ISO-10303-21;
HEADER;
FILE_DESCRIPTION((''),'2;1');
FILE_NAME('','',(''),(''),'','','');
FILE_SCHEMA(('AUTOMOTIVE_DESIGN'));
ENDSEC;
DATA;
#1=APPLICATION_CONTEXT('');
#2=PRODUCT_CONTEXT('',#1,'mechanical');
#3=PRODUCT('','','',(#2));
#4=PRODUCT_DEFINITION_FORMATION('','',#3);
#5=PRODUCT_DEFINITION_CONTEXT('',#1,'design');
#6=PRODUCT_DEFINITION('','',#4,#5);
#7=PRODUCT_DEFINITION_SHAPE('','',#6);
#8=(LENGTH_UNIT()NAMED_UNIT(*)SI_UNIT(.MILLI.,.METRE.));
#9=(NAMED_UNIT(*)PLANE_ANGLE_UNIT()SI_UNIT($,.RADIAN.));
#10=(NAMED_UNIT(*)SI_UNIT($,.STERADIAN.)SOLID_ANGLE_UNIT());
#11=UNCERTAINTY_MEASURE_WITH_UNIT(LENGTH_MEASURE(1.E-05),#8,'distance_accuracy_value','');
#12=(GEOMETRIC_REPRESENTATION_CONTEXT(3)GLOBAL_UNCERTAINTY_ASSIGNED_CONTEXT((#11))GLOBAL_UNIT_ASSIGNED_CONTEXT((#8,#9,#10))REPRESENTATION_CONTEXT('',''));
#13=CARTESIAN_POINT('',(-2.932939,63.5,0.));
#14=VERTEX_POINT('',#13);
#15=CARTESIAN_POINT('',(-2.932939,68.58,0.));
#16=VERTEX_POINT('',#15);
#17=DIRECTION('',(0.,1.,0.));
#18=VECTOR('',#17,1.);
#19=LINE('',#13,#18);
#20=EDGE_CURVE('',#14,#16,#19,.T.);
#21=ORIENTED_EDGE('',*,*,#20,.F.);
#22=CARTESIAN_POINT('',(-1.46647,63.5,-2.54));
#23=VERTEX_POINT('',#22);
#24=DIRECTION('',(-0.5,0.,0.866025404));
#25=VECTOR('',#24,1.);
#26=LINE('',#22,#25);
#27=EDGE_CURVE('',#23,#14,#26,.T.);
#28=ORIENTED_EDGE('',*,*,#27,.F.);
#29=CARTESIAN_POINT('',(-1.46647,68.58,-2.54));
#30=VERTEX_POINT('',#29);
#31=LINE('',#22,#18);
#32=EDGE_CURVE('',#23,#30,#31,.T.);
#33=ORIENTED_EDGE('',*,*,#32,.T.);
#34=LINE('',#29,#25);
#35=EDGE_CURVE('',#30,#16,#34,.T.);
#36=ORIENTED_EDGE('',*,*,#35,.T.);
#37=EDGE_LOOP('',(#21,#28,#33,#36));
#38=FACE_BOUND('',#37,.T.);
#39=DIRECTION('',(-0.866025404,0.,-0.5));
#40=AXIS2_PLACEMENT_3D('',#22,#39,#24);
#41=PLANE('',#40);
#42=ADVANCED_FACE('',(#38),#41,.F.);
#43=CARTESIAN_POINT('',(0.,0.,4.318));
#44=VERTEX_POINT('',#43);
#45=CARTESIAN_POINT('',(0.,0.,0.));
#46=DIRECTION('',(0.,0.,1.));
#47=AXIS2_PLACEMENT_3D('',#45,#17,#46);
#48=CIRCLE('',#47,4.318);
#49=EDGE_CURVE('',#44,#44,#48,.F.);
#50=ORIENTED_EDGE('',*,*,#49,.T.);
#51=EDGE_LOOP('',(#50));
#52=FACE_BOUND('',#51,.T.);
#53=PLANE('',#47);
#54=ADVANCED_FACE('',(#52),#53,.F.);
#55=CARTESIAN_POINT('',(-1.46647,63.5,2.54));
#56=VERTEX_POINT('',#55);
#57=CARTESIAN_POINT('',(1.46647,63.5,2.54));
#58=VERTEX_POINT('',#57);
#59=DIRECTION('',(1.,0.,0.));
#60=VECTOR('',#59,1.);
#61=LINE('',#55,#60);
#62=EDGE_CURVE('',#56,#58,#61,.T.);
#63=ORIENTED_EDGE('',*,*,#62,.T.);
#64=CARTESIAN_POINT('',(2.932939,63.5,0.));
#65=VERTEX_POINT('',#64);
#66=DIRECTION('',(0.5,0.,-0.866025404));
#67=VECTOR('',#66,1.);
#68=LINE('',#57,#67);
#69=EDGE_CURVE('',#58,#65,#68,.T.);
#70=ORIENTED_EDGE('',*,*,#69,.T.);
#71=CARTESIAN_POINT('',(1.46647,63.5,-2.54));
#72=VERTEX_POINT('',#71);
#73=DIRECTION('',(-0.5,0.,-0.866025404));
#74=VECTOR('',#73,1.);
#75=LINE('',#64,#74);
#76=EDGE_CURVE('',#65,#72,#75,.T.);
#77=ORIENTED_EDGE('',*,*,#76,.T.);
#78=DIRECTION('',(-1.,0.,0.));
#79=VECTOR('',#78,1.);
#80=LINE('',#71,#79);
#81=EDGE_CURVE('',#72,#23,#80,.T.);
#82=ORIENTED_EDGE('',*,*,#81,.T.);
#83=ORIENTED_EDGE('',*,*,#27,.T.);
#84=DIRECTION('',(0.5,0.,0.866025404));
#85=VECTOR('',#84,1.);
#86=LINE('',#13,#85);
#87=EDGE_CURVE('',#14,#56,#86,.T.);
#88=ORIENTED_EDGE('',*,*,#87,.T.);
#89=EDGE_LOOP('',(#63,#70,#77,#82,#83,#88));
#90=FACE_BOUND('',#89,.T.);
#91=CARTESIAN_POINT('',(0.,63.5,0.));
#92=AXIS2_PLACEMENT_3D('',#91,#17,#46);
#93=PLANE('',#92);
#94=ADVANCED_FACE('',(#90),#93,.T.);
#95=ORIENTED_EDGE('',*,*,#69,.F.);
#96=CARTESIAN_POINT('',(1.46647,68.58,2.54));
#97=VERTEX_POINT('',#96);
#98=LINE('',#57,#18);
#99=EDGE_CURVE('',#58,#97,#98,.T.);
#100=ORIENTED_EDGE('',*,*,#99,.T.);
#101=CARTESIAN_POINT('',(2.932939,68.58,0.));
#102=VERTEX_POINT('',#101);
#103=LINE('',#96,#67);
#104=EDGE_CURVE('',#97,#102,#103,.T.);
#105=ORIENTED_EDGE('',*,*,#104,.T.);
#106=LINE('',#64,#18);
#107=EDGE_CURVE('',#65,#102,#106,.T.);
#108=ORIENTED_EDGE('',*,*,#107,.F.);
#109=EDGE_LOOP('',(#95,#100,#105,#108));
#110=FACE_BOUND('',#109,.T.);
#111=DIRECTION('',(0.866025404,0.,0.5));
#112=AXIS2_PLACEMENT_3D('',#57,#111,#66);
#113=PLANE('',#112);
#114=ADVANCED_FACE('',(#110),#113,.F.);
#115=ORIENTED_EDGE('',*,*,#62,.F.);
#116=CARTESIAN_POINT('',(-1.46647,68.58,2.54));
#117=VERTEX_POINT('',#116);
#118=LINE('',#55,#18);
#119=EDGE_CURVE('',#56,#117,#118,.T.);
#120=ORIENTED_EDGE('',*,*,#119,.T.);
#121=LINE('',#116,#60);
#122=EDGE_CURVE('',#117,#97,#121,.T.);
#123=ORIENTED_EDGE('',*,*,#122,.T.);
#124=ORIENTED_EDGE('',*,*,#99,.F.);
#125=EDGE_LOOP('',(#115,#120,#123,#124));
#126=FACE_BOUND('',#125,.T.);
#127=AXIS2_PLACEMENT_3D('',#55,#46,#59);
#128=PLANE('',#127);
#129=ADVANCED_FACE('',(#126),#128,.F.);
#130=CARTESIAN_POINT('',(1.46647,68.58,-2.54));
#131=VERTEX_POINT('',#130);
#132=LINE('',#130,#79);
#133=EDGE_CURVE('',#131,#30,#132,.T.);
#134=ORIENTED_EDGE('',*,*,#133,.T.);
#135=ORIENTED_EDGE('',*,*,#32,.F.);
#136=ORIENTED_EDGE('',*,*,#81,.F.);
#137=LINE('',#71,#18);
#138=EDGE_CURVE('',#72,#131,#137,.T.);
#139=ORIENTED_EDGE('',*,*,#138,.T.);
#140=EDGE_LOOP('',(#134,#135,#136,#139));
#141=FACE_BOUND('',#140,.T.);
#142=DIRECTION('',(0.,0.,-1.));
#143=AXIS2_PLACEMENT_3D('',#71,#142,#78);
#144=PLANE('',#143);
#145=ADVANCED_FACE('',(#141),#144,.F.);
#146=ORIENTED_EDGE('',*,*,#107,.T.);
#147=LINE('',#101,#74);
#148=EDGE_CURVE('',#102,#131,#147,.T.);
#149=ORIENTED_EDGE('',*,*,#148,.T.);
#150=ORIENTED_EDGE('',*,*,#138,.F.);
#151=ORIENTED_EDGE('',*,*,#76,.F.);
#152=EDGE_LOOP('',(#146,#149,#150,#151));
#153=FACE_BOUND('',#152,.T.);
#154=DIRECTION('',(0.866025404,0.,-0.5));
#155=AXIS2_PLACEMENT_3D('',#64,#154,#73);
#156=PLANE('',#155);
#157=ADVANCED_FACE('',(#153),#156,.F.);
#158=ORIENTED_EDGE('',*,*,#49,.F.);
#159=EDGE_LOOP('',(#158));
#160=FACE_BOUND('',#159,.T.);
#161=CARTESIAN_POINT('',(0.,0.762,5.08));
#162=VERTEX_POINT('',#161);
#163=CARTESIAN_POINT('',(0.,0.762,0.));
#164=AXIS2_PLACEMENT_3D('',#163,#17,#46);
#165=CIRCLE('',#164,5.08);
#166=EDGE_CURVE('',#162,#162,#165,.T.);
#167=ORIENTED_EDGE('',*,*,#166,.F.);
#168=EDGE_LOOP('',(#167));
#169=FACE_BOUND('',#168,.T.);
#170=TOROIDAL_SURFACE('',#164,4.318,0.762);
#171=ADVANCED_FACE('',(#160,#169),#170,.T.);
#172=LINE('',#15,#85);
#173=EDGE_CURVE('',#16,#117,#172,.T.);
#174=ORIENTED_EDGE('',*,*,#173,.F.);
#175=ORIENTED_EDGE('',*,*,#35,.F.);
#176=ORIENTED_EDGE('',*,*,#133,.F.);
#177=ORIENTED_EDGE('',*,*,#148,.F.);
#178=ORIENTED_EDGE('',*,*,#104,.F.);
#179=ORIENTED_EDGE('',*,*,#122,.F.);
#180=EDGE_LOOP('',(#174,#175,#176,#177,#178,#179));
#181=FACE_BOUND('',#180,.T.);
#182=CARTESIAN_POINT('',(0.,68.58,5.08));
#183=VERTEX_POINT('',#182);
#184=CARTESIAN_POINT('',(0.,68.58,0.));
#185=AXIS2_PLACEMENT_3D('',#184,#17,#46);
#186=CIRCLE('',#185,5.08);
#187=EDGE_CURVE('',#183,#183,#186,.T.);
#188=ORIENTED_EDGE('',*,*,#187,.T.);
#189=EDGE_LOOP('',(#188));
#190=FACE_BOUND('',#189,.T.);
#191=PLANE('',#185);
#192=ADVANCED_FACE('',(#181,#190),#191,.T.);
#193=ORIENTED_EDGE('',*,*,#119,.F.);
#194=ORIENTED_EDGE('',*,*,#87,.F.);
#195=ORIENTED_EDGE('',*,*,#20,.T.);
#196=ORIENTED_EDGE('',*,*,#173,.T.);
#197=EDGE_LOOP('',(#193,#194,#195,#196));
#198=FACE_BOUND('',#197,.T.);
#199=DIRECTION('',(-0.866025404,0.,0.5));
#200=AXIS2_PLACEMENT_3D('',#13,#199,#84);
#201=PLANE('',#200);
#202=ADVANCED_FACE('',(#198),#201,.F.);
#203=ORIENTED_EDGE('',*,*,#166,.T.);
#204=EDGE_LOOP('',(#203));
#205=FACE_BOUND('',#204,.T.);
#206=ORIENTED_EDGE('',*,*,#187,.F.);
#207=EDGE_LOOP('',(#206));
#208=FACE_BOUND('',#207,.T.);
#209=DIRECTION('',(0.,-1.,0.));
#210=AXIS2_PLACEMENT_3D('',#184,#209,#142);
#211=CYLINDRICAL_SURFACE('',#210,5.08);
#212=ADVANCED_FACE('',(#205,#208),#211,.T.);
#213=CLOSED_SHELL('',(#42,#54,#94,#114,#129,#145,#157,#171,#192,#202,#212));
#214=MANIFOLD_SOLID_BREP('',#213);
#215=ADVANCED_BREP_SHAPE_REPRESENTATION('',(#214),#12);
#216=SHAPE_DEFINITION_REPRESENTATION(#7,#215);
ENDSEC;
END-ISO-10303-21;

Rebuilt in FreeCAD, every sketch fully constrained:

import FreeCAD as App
import Part
import Sketcher

V = App.Vector
Q = App.Units.Quantity


def edges_at(feature, points):
    """Names of the edges that pass closest to the given points."""
    edges = feature.Shape.Edges
    near = lambda p: min(range(len(edges)), key=lambda i: edges[i].distToShape(Part.Vertex(*p))[0])
    return sorted({f"Edge{near(p) + 1}" for p in points})


def add_polygon(sketch, points):
    """Adds a closed chain of lines whose ends are joined by coincident constraints."""
    first, n = sketch.GeometryCount, len(points)
    for a, b in zip(points, points[1:] + points[:1]):
        sketch.addGeometry(Part.LineSegment(App.Vector(*a, 0), App.Vector(*b, 0)), False)
    for i in range(n):
        sketch.addConstraint(Sketcher.Constraint("Coincident", first + i, 2, first + (i + 1) % n, 1))

doc = App.newDocument("Part")
body = doc.addObject("PartDesign::Body", "Body")

sketch1 = doc.addObject("Sketcher::SketchObject", "Sketch")
body.addObject(sketch1)
sketch1.AttachmentSupport = (doc.XZ_Plane, [""])
sketch1.MapMode = "FlatFace"
sketch1.addGeometry(Part.Circle(V(0, 0, 0), V(0, 0, 1), 5.08), False)
sketch1.addConstraint(Sketcher.Constraint("Coincident", 0, 3, -1, 1))
sketch1.addConstraint(Sketcher.Constraint("Diameter", 0, Q("0.4 in")))
pad1 = doc.addObject("PartDesign::Pad", "Pad")
body.addObject(pad1)
pad1.Profile = sketch1
pad1.Length = Q("2.7 in")
pad1.Reversed = True

sketch2 = doc.addObject("Sketcher::SketchObject", "Sketch001")
body.addObject(sketch2)
sketch2.AttachmentSupport = (doc.XZ_Plane, [""])
sketch2.MapMode = "FlatFace"
sketch2.AttachmentOffset = App.Placement(V(0, 0, -2.7 * 25.4), App.Rotation())
add_polygon(sketch2, [(-1.46647, 2.54), (1.46647, 2.54), (2.932939, 0), (1.46647, -2.54), (-1.46647, -2.54), (-2.932939, 0)])
sketch2.addConstraint(Sketcher.Constraint("Horizontal", 0))
sketch2.addConstraint(Sketcher.Constraint("Horizontal", 3))
sketch2.addConstraint(Sketcher.Constraint("Symmetric", 0, 2, 3, 2, -1, 1))
sketch2.addConstraint(Sketcher.Constraint("Symmetric", 1, 2, 4, 2, -1, 1))
sketch2.addConstraint(Sketcher.Constraint("PointOnObject", 1, 2, -1))
sketch2.addConstraint(Sketcher.Constraint("Parallel", 2, 5))
sketch2.addConstraint(Sketcher.Constraint("Vertical", 0, 2, 2, 2))
sketch2.addConstraint(Sketcher.Constraint("Angle", 1, Q("-60 deg")))
sketch2.addConstraint(Sketcher.Constraint("DistanceY", -1, 1, 0, 2, Q("0.1 in")))
sketch2.addConstraint(Sketcher.Constraint("DistanceX", 0, 1, 0, 2, 2.932939))
pocket1 = doc.addObject("PartDesign::Pocket", "Pocket")
body.addObject(pocket1)
pocket1.Profile = sketch2
pocket1.Length = Q("0.2 in")
pocket1.Reversed = True
doc.recompute()

fillet = doc.addObject("PartDesign::Fillet", "Fillet")
body.addObject(fillet)
fillet.Base = (pocket1, edges_at(pocket1, [(0, 0, -5.08)]))
fillet.Radius = Q("0.03 in")

doc.recompute()
